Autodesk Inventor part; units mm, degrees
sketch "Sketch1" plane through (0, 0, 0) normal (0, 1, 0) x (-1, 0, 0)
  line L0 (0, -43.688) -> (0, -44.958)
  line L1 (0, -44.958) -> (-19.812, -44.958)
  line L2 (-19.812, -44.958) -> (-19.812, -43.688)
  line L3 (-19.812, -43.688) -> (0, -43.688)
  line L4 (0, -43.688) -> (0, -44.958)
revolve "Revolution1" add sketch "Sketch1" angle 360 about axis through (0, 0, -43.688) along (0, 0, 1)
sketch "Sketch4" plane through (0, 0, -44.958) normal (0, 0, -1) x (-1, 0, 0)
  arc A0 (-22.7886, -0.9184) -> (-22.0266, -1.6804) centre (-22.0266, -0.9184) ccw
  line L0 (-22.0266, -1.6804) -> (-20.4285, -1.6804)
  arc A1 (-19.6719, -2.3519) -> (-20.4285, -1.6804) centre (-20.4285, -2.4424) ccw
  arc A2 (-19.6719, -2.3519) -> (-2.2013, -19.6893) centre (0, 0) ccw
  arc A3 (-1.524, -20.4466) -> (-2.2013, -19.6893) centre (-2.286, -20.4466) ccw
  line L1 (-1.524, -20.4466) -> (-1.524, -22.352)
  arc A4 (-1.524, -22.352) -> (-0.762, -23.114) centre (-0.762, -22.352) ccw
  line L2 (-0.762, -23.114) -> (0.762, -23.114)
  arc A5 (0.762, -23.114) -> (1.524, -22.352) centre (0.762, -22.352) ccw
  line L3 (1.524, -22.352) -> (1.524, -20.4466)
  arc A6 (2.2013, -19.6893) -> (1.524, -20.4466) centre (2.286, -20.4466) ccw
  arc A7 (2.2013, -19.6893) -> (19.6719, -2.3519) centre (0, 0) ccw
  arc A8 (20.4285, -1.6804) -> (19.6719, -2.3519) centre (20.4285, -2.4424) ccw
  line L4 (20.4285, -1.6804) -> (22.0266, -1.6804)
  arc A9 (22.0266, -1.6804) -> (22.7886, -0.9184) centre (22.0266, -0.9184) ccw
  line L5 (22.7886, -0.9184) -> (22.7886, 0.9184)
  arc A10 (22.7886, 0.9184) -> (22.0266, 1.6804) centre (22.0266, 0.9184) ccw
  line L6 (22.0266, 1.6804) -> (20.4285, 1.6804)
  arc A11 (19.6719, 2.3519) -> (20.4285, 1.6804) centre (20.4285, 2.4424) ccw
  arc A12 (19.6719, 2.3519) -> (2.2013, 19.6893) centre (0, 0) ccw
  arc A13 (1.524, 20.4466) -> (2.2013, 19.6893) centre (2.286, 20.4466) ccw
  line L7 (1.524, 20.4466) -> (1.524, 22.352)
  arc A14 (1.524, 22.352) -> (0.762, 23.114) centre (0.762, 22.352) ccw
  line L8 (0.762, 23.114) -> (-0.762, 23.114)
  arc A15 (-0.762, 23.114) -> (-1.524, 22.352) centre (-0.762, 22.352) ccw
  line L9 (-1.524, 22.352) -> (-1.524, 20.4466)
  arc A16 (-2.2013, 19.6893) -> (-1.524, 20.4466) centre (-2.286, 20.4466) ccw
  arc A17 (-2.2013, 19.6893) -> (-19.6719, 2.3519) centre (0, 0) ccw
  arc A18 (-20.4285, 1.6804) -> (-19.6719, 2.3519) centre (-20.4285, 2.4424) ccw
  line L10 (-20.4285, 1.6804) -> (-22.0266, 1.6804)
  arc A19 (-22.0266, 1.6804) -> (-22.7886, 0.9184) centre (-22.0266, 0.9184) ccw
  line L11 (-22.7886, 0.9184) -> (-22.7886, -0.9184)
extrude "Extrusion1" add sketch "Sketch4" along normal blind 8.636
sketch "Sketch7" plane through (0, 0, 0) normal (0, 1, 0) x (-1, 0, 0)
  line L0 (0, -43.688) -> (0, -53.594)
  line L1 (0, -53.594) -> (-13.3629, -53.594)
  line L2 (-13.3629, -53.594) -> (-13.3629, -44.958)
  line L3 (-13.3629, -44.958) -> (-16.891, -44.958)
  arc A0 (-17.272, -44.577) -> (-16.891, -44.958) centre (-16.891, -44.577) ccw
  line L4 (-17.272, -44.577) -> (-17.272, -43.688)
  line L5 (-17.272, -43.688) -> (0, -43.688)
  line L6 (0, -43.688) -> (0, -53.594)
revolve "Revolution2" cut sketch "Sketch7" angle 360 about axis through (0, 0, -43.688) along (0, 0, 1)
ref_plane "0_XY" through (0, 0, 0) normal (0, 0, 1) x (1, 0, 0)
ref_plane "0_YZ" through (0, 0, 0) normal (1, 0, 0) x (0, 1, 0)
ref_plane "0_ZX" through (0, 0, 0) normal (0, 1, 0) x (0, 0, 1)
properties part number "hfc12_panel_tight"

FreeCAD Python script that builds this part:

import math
import FreeCAD as App
import Part
import Sketcher
from FreeCAD import Vector
Q = App.Units.Quantity


def add_polygon(sketch, points):
    """Adds a closed chain of lines whose ends are joined by coincident constraints."""
    first, n = sketch.GeometryCount, len(points)
    for a, b in zip(points, points[1:] + points[:1]):
        sketch.addGeometry(Part.LineSegment(App.Vector(*a, 0), App.Vector(*b, 0)), False)
    for i in range(n):
        sketch.addConstraint(Sketcher.Constraint("Coincident", first + i, 2, first + (i + 1) % n, 1))

doc = App.newDocument("Part")
body = doc.addObject("PartDesign::Body", "Body")

sketch1 = doc.addObject("Sketcher::SketchObject", "Sketch")
body.addObject(sketch1)
sketch1.AttachmentSupport = (doc.XZ_Plane, [""])
sketch1.MapMode = "FlatFace"
add_polygon(sketch1, [(0, -44.958), (0, -43.688), (19.812, -43.688), (19.812, -44.958)])
sketch1.addConstraint(Sketcher.Constraint("Vertical", 0))
sketch1.addConstraint(Sketcher.Constraint("Horizontal", 1))
sketch1.addConstraint(Sketcher.Constraint("Vertical", 2))
sketch1.addConstraint(Sketcher.Constraint("Horizontal", 3))
sketch1.addConstraint(Sketcher.Constraint("PointOnObject", 0, 2, -2))
sketch1.addConstraint(Sketcher.Constraint("DistanceX", 1, 1, 1, 2, Q("0.78 in")))
sketch1.addConstraint(Sketcher.Constraint("DistanceY", 0, 1, 0, 2, Q("0.05 in")))
sketch1.addConstraint(Sketcher.Constraint("DistanceY", 0, 2, -1, 1, Q("1.72 in")))
revolution = doc.addObject("PartDesign::Revolution", "Revolution")
body.addObject(revolution)
revolution.Profile = sketch1
revolution.ReferenceAxis = (sketch1, ["V_Axis"])
revolution.Angle = 360

sketch2 = doc.addObject("Sketcher::SketchObject", "Sketch001")
body.addObject(sketch2)
sketch2.AttachmentSupport = (doc.XY_Plane, [""])
sketch2.MapMode = "FlatFace"
sketch2.AttachmentOffset = App.Placement(Vector(0, 0, -1.77 * 25.4), App.Rotation())
sketch2.addGeometry(Part.LineSegment(Vector(22.7886, 0.9184, 0), Vector(22.7886, -0.9184, 0)), False)
sketch2.addGeometry(Part.ArcOfCircle(Part.Circle(Vector(22.0266, -0.9184, 0), Vector(0, 0, 1), 0.762), math.radians(-90), math.radians(0)), False)
sketch2.addGeometry(Part.LineSegment(Vector(22.0266, -1.6804, 0), Vector(20.4285, -1.6804, 0)), False)
sketch2.addGeometry(Part.ArcOfCircle(Part.Circle(Vector(20.4285, -2.4424, 0), Vector(0, 0, 1), 0.761993), math.radians(90), math.radians(173.179026)), False)
sketch2.addGeometry(Part.ArcOfCircle(Part.Circle(Vector(0, 0, 0), Vector(0, 0, 1), 19.811973), math.radians(-83.620718), math.radians(-6.817712)), False)
sketch2.addGeometry(Part.ArcOfCircle(Part.Circle(Vector(2.286, -20.4466, 0), Vector(0, 0, 1), 0.762), math.radians(96.381708), math.radians(180)), False)
sketch2.addGeometry(Part.LineSegment(Vector(1.524, -20.4466, 0), Vector(1.524, -22.352, 0)), False)
sketch2.addGeometry(Part.ArcOfCircle(Part.Circle(Vector(0.762, -22.352, 0), Vector(0, 0, 1), 0.762), math.radians(-90), math.radians(0)), False)
sketch2.addGeometry(Part.LineSegment(Vector(0.762, -23.114, 0), Vector(-0.762, -23.114, 0)), False)
sketch2.addGeometry(Part.ArcOfCircle(Part.Circle(Vector(-0.762, -22.352, 0), Vector(0, 0, 1), 0.762), math.radians(180), math.radians(270)), False)
sketch2.addGeometry(Part.LineSegment(Vector(-1.524, -22.352, 0), Vector(-1.524, -20.4466, 0)), False)
sketch2.addGeometry(Part.ArcOfCircle(Part.Circle(Vector(-2.286, -20.4466, 0), Vector(0, 0, 1), 0.762022), math.radians(0), math.radians(83.618292)), False)
sketch2.addGeometry(Part.ArcOfCircle(Part.Circle(Vector(0, 0, 0), Vector(0, 0, 1), 19.811993), math.radians(-173.182288), math.radians(-96.379282)), False)
sketch2.addGeometry(Part.ArcOfCircle(Part.Circle(Vector(-20.4285, -2.4424, 0), Vector(0, 0, 1), 0.762), math.radians(6.820974), math.radians(90)), False)
sketch2.addGeometry(Part.LineSegment(Vector(-20.4285, -1.6804, 0), Vector(-22.0266, -1.6804, 0)), False)
sketch2.addGeometry(Part.ArcOfCircle(Part.Circle(Vector(-22.0266, -0.9184, 0), Vector(0, 0, 1), 0.762), math.radians(180), math.radians(270)), False)
sketch2.addGeometry(Part.LineSegment(Vector(-22.7886, -0.9184, 0), Vector(-22.7886, 0.9184, 0)), False)
sketch2.addGeometry(Part.ArcOfCircle(Part.Circle(Vector(-22.0266, 0.9184, 0), Vector(0, 0, 1), 0.762), math.radians(90), math.radians(180)), False)
sketch2.addGeometry(Part.LineSegment(Vector(-22.0266, 1.6804, 0), Vector(-20.4285, 1.6804, 0)), False)
sketch2.addGeometry(Part.ArcOfCircle(Part.Circle(Vector(-20.4285, 2.4424, 0), Vector(0, 0, 1), 0.761993), math.radians(-90), math.radians(-6.820974)), False)
sketch2.addGeometry(Part.ArcOfCircle(Part.Circle(Vector(0, 0, 0), Vector(0, 0, 1), 19.811973), math.radians(96.379282), math.radians(173.182288)), False)
sketch2.addGeometry(Part.ArcOfCircle(Part.Circle(Vector(-2.286, 20.4466, 0), Vector(0, 0, 1), 0.762), math.radians(-83.618292), math.radians(0)), False)
sketch2.addGeometry(Part.LineSegment(Vector(-1.524, 20.4466, 0), Vector(-1.524, 22.352, 0)), False)
sketch2.addGeometry(Part.ArcOfCircle(Part.Circle(Vector(-0.762, 22.352, 0), Vector(0, 0, 1), 0.762), math.radians(90), math.radians(180)), False)
sketch2.addGeometry(Part.LineSegment(Vector(-0.762, 23.114, 0), Vector(0.762, 23.114, 0)), False)
sketch2.addGeometry(Part.ArcOfCircle(Part.Circle(Vector(0.762, 22.352, 0), Vector(0, 0, 1), 0.762), math.radians(0), math.radians(90)), False)
sketch2.addGeometry(Part.LineSegment(Vector(1.524, 22.352, 0), Vector(1.524, 20.4466, 0)), False)
sketch2.addGeometry(Part.ArcOfCircle(Part.Circle(Vector(2.286, 20.4466, 0), Vector(0, 0, 1), 0.762022), math.radians(180), math.radians(263.618292)), False)
sketch2.addGeometry(Part.ArcOfCircle(Part.Circle(Vector(0, 0, 0), Vector(0, 0, 1), 19.811993), math.radians(6.817712), math.radians(83.620718)), False)
sketch2.addGeometry(Part.ArcOfCircle(Part.Circle(Vector(20.4285, 2.4424, 0), Vector(0, 0, 1), 0.762), math.radians(-173.179026), math.radians(-90)), False)
sketch2.addGeometry(Part.LineSegment(Vector(20.4285, 1.6804, 0), Vector(22.0266, 1.6804, 0)), False)
sketch2.addGeometry(Part.ArcOfCircle(Part.Circle(Vector(22.0266, 0.9184, 0), Vector(0, 0, 1), 0.762), math.radians(0), math.radians(90)), False)
sketch2.addConstraint(Sketcher.Constraint("Tangent", 0, 2, 1, 2))
sketch2.addConstraint(Sketcher.Constraint("Tangent", 1, 1, 2, 1))
sketch2.addConstraint(Sketcher.Constraint("Tangent", 2, 2, 3, 1))
sketch2.addConstraint(Sketcher.Constraint("Tangent", 3, 2, 4, 2))
sketch2.addConstraint(Sketcher.Constraint("Tangent", 4, 1, 5, 1))
sketch2.addConstraint(Sketcher.Constraint("Tangent", 5, 2, 6, 1))
sketch2.addConstraint(Sketcher.Constraint("Tangent", 6, 2, 7, 2))
sketch2.addConstraint(Sketcher.Constraint("Tangent", 7, 1, 8, 1))
sketch2.addConstraint(Sketcher.Constraint("Tangent", 8, 2, 9, 2))
sketch2.addConstraint(Sketcher.Constraint("Tangent", 9, 1, 10, 1))
sketch2.addConstraint(Sketcher.Constraint("Tangent", 10, 2, 11, 1))
sketch2.addConstraint(Sketcher.Constraint("Tangent", 11, 2, 12, 2))
sketch2.addConstraint(Sketcher.Constraint("Tangent", 12, 1, 13, 1))
sketch2.addConstraint(Sketcher.Constraint("Tangent", 13, 2, 14, 1))
sketch2.addConstraint(Sketcher.Constraint("Tangent", 14, 2, 15, 2))
sketch2.addConstraint(Sketcher.Constraint("Tangent", 15, 1, 16, 1))
sketch2.addConstraint(Sketcher.Constraint("Tangent", 16, 2, 17, 2))
sketch2.addConstraint(Sketcher.Constraint("Tangent", 17, 1, 18, 1))
sketch2.addConstraint(Sketcher.Constraint("Tangent", 18, 2, 19, 1))
sketch2.addConstraint(Sketcher.Constraint("Tangent", 19, 2, 20, 2))
sketch2.addConstraint(Sketcher.Constraint("Tangent", 20, 1, 21, 1))
sketch2.addConstraint(Sketcher.Constraint("Tangent", 21, 2, 22, 1))
sketch2.addConstraint(Sketcher.Constraint("Tangent", 22, 2, 23, 2))
sketch2.addConstraint(Sketcher.Constraint("Tangent", 23, 1, 24, 1))
sketch2.addConstraint(Sketcher.Constraint("Tangent", 24, 2, 25, 2))
sketch2.addConstraint(Sketcher.Constraint("Tangent", 25, 1, 26, 1))
sketch2.addConstraint(Sketcher.Constraint("Tangent", 26, 2, 27, 1))
sketch2.addConstraint(Sketcher.Constraint("Tangent", 27, 2, 28, 2))
sketch2.addConstraint(Sketcher.Constraint("Tangent", 28, 1, 29, 1))
sketch2.addConstraint(Sketcher.Constraint("Tangent", 29, 2, 30, 1))
sketch2.addConstraint(Sketcher.Constraint("Tangent", 30, 2, 31, 2))
sketch2.addConstraint(Sketcher.Constraint("Tangent", 31, 1, 0, 1))
sketch2.addConstraint(Sketcher.Constraint("Vertical", 0))
sketch2.addConstraint(Sketcher.Constraint("Horizontal", 2))
sketch2.addConstraint(Sketcher.Constraint("Vertical", 6))
sketch2.addConstraint(Sketcher.Constraint("Horizontal", 8))
sketch2.addConstraint(Sketcher.Constraint("Vertical", 10))
sketch2.addConstraint(Sketcher.Constraint("Horizontal", 14))
sketch2.addConstraint(Sketcher.Constraint("Vertical", 16))
sketch2.addConstraint(Sketcher.Constraint("Horizontal", 18))
sketch2.addConstraint(Sketcher.Constraint("Vertical", 22))
sketch2.addConstraint(Sketcher.Constraint("Horizontal", 24))
sketch2.addConstraint(Sketcher.Constraint("Vertical", 26))
sketch2.addConstraint(Sketcher.Constraint("Horizontal", 30))
sketch2.addConstraint(Sketcher.Constraint("Coincident", 4, 3, -1, 1))
sketch2.addConstraint(Sketcher.Constraint("Coincident", 12, 3, -1, 1))
sketch2.addConstraint(Sketcher.Constraint("Coincident", 20, 3, -1, 1))
sketch2.addConstraint(Sketcher.Constraint("Coincident", 28, 3, -1, 1))
sketch2.addConstraint(Sketcher.Constraint("Equal", 1, 3))
sketch2.addConstraint(Sketcher.Constraint("Equal", 3, 5))
sketch2.addConstraint(Sketcher.Constraint("Equal", 5, 7))
sketch2.addConstraint(Sketcher.Constraint("Equal", 7, 9))
sketch2.addConstraint(Sketcher.Constraint("Equal", 9, 11))
sketch2.addConstraint(Sketcher.Constraint("Equal", 4, 12))
sketch2.addConstraint(Sketcher.Constraint("Equal", 11, 13))
sketch2.addConstraint(Sketcher.Constraint("Equal", 13, 15))
sketch2.addConstraint(Sketcher.Constraint("Equal", 15, 17))
sketch2.addConstraint(Sketcher.Constraint("Equal", 17, 19))
sketch2.addConstraint(Sketcher.Constraint("Equal", 12, 20))
sketch2.addConstraint(Sketcher.Constraint("Equal", 19, 21))
sketch2.addConstraint(Sketcher.Constraint("Equal", 21, 23))
sketch2.addConstraint(Sketcher.Constraint("Equal", 23, 25))
sketch2.addConstraint(Sketcher.Constraint("Equal", 25, 27))
sketch2.addConstraint(Sketcher.Constraint("Equal", 20, 28))
sketch2.addConstraint(Sketcher.Constraint("Equal", 27, 29))
sketch2.addConstraint(Sketcher.Constraint("Equal", 29, 31))
sketch2.addConstraint(Sketcher.Constraint("Symmetric", 1, 3, 17, 3, -1, 1))
sketch2.addConstraint(Sketcher.Constraint("Symmetric", 7, 3, 23, 3, -1, 1))
sketch2.addConstraint(Sketcher.Constraint("Horizontal", 5, 3, 11, 3))
sketch2.addConstraint(Sketcher.Constraint("Horizontal", 3, 3, 13, 3))
sketch2.addConstraint(Sketcher.Constraint("Horizontal", 21, 3, 27, 3))
sketch2.addConstraint(Sketcher.Constraint("Horizontal", 19, 3, 29, 3))
sketch2.addConstraint(Sketcher.Constraint("Radius", 1, Q("0.03 in")))
sketch2.addConstraint(Sketcher.Constraint("Radius", 4, Q("0.78 in")))
sketch2.addConstraint(Sketcher.Constraint("DistanceX", 8, 2, 8, 1, Q("0.06 in")))
sketch2.addConstraint(Sketcher.Constraint("DistanceY", 7, 3, -1, 1, Q("0.88 in")))
sketch2.addConstraint(Sketcher.Constraint("DistanceX", 2, 2, 2, 1, Q("1.598 mm")))
sketch2.addConstraint(Sketcher.Constraint("DistanceY", 0, 2, 0, 1, Q("1.8368 mm")))
pad1 = doc.addObject("PartDesign::Pad", "Pad")
body.addObject(pad1)
pad1.Profile = sketch2
pad1.Length = Q("0.34 in")
pad1.Reversed = True

sketch3 = doc.addObject("Sketcher::SketchObject", "Sketch002")
body.addObject(sketch3)
sketch3.AttachmentSupport = (doc.XZ_Plane, [""])
sketch3.MapMode = "FlatFace"
sketch3.addGeometry(Part.LineSegment(Vector(0, -53.594, 0), Vector(0, -43.688, 0)), False)
sketch3.addGeometry(Part.LineSegment(Vector(0, -43.688, 0), Vector(17.272, -43.688, 0)), False)
sketch3.addGeometry(Part.LineSegment(Vector(17.272, -43.688, 0), Vector(17.272, -44.577, 0)), False)
sketch3.addGeometry(Part.ArcOfCircle(Part.Circle(Vector(16.891, -44.577, 0), Vector(0, 0, 1), 0.381), math.radians(-90), math.radians(0)), False)
sketch3.addGeometry(Part.LineSegment(Vector(16.891, -44.958, 0), Vector(13.3629, -44.958, 0)), False)
sketch3.addGeometry(Part.LineSegment(Vector(13.3629, -44.958, 0), Vector(13.3629, -53.594, 0)), False)
sketch3.addGeometry(Part.LineSegment(Vector(13.3629, -53.594, 0), Vector(0, -53.594, 0)), False)
sketch3.addConstraint(Sketcher.Constraint("Coincident", 0, 2, 1, 1))
sketch3.addConstraint(Sketcher.Constraint("Coincident", 1, 2, 2, 1))
sketch3.addConstraint(Sketcher.Constraint("Tangent", 2, 2, 3, 2))
sketch3.addConstraint(Sketcher.Constraint("Tangent", 3, 1, 4, 1))
sketch3.addConstraint(Sketcher.Constraint("Coincident", 4, 2, 5, 1))
sketch3.addConstraint(Sketcher.Constraint("Coincident", 5, 2, 6, 1))
sketch3.addConstraint(Sketcher.Constraint("Coincident", 6, 2, 0, 1))
sketch3.addConstraint(Sketcher.Constraint("Vertical", 0))
sketch3.addConstraint(Sketcher.Constraint("Horizontal", 1))
sketch3.addConstraint(Sketcher.Constraint("Vertical", 2))
sketch3.addConstraint(Sketcher.Constraint("Horizontal", 4))
sketch3.addConstraint(Sketcher.Constraint("Vertical", 5))
sketch3.addConstraint(Sketcher.Constraint("Horizontal", 6))
sketch3.addConstraint(Sketcher.Constraint("PointOnObject", 0, 2, -2))
sketch3.addConstraint(Sketcher.Constraint("Radius", 3, Q("0.015 in")))
sketch3.addConstraint(Sketcher.Constraint("DistanceX", 1, 1, 1, 2, Q("0.68 in")))
sketch3.addConstraint(Sketcher.Constraint("DistanceY", 0, 1, 0, 2, Q("0.39 in")))
sketch3.addConstraint(Sketcher.Constraint("DistanceY", 5, 2, 5, 1, Q("0.34 in")))
sketch3.addConstraint(Sketcher.Constraint("DistanceY", 0, 2, -1, 1, Q("1.72 in")))
sketch3.addConstraint(Sketcher.Constraint("DistanceX", 4, 2, 4, 1, Q("0.1389 in")))
groove = doc.addObject("PartDesign::Groove", "Groove")
body.addObject(groove)
groove.Profile = sketch3
groove.ReferenceAxis = (sketch3, ["V_Axis"])
groove.Angle = 360

doc.recompute()
